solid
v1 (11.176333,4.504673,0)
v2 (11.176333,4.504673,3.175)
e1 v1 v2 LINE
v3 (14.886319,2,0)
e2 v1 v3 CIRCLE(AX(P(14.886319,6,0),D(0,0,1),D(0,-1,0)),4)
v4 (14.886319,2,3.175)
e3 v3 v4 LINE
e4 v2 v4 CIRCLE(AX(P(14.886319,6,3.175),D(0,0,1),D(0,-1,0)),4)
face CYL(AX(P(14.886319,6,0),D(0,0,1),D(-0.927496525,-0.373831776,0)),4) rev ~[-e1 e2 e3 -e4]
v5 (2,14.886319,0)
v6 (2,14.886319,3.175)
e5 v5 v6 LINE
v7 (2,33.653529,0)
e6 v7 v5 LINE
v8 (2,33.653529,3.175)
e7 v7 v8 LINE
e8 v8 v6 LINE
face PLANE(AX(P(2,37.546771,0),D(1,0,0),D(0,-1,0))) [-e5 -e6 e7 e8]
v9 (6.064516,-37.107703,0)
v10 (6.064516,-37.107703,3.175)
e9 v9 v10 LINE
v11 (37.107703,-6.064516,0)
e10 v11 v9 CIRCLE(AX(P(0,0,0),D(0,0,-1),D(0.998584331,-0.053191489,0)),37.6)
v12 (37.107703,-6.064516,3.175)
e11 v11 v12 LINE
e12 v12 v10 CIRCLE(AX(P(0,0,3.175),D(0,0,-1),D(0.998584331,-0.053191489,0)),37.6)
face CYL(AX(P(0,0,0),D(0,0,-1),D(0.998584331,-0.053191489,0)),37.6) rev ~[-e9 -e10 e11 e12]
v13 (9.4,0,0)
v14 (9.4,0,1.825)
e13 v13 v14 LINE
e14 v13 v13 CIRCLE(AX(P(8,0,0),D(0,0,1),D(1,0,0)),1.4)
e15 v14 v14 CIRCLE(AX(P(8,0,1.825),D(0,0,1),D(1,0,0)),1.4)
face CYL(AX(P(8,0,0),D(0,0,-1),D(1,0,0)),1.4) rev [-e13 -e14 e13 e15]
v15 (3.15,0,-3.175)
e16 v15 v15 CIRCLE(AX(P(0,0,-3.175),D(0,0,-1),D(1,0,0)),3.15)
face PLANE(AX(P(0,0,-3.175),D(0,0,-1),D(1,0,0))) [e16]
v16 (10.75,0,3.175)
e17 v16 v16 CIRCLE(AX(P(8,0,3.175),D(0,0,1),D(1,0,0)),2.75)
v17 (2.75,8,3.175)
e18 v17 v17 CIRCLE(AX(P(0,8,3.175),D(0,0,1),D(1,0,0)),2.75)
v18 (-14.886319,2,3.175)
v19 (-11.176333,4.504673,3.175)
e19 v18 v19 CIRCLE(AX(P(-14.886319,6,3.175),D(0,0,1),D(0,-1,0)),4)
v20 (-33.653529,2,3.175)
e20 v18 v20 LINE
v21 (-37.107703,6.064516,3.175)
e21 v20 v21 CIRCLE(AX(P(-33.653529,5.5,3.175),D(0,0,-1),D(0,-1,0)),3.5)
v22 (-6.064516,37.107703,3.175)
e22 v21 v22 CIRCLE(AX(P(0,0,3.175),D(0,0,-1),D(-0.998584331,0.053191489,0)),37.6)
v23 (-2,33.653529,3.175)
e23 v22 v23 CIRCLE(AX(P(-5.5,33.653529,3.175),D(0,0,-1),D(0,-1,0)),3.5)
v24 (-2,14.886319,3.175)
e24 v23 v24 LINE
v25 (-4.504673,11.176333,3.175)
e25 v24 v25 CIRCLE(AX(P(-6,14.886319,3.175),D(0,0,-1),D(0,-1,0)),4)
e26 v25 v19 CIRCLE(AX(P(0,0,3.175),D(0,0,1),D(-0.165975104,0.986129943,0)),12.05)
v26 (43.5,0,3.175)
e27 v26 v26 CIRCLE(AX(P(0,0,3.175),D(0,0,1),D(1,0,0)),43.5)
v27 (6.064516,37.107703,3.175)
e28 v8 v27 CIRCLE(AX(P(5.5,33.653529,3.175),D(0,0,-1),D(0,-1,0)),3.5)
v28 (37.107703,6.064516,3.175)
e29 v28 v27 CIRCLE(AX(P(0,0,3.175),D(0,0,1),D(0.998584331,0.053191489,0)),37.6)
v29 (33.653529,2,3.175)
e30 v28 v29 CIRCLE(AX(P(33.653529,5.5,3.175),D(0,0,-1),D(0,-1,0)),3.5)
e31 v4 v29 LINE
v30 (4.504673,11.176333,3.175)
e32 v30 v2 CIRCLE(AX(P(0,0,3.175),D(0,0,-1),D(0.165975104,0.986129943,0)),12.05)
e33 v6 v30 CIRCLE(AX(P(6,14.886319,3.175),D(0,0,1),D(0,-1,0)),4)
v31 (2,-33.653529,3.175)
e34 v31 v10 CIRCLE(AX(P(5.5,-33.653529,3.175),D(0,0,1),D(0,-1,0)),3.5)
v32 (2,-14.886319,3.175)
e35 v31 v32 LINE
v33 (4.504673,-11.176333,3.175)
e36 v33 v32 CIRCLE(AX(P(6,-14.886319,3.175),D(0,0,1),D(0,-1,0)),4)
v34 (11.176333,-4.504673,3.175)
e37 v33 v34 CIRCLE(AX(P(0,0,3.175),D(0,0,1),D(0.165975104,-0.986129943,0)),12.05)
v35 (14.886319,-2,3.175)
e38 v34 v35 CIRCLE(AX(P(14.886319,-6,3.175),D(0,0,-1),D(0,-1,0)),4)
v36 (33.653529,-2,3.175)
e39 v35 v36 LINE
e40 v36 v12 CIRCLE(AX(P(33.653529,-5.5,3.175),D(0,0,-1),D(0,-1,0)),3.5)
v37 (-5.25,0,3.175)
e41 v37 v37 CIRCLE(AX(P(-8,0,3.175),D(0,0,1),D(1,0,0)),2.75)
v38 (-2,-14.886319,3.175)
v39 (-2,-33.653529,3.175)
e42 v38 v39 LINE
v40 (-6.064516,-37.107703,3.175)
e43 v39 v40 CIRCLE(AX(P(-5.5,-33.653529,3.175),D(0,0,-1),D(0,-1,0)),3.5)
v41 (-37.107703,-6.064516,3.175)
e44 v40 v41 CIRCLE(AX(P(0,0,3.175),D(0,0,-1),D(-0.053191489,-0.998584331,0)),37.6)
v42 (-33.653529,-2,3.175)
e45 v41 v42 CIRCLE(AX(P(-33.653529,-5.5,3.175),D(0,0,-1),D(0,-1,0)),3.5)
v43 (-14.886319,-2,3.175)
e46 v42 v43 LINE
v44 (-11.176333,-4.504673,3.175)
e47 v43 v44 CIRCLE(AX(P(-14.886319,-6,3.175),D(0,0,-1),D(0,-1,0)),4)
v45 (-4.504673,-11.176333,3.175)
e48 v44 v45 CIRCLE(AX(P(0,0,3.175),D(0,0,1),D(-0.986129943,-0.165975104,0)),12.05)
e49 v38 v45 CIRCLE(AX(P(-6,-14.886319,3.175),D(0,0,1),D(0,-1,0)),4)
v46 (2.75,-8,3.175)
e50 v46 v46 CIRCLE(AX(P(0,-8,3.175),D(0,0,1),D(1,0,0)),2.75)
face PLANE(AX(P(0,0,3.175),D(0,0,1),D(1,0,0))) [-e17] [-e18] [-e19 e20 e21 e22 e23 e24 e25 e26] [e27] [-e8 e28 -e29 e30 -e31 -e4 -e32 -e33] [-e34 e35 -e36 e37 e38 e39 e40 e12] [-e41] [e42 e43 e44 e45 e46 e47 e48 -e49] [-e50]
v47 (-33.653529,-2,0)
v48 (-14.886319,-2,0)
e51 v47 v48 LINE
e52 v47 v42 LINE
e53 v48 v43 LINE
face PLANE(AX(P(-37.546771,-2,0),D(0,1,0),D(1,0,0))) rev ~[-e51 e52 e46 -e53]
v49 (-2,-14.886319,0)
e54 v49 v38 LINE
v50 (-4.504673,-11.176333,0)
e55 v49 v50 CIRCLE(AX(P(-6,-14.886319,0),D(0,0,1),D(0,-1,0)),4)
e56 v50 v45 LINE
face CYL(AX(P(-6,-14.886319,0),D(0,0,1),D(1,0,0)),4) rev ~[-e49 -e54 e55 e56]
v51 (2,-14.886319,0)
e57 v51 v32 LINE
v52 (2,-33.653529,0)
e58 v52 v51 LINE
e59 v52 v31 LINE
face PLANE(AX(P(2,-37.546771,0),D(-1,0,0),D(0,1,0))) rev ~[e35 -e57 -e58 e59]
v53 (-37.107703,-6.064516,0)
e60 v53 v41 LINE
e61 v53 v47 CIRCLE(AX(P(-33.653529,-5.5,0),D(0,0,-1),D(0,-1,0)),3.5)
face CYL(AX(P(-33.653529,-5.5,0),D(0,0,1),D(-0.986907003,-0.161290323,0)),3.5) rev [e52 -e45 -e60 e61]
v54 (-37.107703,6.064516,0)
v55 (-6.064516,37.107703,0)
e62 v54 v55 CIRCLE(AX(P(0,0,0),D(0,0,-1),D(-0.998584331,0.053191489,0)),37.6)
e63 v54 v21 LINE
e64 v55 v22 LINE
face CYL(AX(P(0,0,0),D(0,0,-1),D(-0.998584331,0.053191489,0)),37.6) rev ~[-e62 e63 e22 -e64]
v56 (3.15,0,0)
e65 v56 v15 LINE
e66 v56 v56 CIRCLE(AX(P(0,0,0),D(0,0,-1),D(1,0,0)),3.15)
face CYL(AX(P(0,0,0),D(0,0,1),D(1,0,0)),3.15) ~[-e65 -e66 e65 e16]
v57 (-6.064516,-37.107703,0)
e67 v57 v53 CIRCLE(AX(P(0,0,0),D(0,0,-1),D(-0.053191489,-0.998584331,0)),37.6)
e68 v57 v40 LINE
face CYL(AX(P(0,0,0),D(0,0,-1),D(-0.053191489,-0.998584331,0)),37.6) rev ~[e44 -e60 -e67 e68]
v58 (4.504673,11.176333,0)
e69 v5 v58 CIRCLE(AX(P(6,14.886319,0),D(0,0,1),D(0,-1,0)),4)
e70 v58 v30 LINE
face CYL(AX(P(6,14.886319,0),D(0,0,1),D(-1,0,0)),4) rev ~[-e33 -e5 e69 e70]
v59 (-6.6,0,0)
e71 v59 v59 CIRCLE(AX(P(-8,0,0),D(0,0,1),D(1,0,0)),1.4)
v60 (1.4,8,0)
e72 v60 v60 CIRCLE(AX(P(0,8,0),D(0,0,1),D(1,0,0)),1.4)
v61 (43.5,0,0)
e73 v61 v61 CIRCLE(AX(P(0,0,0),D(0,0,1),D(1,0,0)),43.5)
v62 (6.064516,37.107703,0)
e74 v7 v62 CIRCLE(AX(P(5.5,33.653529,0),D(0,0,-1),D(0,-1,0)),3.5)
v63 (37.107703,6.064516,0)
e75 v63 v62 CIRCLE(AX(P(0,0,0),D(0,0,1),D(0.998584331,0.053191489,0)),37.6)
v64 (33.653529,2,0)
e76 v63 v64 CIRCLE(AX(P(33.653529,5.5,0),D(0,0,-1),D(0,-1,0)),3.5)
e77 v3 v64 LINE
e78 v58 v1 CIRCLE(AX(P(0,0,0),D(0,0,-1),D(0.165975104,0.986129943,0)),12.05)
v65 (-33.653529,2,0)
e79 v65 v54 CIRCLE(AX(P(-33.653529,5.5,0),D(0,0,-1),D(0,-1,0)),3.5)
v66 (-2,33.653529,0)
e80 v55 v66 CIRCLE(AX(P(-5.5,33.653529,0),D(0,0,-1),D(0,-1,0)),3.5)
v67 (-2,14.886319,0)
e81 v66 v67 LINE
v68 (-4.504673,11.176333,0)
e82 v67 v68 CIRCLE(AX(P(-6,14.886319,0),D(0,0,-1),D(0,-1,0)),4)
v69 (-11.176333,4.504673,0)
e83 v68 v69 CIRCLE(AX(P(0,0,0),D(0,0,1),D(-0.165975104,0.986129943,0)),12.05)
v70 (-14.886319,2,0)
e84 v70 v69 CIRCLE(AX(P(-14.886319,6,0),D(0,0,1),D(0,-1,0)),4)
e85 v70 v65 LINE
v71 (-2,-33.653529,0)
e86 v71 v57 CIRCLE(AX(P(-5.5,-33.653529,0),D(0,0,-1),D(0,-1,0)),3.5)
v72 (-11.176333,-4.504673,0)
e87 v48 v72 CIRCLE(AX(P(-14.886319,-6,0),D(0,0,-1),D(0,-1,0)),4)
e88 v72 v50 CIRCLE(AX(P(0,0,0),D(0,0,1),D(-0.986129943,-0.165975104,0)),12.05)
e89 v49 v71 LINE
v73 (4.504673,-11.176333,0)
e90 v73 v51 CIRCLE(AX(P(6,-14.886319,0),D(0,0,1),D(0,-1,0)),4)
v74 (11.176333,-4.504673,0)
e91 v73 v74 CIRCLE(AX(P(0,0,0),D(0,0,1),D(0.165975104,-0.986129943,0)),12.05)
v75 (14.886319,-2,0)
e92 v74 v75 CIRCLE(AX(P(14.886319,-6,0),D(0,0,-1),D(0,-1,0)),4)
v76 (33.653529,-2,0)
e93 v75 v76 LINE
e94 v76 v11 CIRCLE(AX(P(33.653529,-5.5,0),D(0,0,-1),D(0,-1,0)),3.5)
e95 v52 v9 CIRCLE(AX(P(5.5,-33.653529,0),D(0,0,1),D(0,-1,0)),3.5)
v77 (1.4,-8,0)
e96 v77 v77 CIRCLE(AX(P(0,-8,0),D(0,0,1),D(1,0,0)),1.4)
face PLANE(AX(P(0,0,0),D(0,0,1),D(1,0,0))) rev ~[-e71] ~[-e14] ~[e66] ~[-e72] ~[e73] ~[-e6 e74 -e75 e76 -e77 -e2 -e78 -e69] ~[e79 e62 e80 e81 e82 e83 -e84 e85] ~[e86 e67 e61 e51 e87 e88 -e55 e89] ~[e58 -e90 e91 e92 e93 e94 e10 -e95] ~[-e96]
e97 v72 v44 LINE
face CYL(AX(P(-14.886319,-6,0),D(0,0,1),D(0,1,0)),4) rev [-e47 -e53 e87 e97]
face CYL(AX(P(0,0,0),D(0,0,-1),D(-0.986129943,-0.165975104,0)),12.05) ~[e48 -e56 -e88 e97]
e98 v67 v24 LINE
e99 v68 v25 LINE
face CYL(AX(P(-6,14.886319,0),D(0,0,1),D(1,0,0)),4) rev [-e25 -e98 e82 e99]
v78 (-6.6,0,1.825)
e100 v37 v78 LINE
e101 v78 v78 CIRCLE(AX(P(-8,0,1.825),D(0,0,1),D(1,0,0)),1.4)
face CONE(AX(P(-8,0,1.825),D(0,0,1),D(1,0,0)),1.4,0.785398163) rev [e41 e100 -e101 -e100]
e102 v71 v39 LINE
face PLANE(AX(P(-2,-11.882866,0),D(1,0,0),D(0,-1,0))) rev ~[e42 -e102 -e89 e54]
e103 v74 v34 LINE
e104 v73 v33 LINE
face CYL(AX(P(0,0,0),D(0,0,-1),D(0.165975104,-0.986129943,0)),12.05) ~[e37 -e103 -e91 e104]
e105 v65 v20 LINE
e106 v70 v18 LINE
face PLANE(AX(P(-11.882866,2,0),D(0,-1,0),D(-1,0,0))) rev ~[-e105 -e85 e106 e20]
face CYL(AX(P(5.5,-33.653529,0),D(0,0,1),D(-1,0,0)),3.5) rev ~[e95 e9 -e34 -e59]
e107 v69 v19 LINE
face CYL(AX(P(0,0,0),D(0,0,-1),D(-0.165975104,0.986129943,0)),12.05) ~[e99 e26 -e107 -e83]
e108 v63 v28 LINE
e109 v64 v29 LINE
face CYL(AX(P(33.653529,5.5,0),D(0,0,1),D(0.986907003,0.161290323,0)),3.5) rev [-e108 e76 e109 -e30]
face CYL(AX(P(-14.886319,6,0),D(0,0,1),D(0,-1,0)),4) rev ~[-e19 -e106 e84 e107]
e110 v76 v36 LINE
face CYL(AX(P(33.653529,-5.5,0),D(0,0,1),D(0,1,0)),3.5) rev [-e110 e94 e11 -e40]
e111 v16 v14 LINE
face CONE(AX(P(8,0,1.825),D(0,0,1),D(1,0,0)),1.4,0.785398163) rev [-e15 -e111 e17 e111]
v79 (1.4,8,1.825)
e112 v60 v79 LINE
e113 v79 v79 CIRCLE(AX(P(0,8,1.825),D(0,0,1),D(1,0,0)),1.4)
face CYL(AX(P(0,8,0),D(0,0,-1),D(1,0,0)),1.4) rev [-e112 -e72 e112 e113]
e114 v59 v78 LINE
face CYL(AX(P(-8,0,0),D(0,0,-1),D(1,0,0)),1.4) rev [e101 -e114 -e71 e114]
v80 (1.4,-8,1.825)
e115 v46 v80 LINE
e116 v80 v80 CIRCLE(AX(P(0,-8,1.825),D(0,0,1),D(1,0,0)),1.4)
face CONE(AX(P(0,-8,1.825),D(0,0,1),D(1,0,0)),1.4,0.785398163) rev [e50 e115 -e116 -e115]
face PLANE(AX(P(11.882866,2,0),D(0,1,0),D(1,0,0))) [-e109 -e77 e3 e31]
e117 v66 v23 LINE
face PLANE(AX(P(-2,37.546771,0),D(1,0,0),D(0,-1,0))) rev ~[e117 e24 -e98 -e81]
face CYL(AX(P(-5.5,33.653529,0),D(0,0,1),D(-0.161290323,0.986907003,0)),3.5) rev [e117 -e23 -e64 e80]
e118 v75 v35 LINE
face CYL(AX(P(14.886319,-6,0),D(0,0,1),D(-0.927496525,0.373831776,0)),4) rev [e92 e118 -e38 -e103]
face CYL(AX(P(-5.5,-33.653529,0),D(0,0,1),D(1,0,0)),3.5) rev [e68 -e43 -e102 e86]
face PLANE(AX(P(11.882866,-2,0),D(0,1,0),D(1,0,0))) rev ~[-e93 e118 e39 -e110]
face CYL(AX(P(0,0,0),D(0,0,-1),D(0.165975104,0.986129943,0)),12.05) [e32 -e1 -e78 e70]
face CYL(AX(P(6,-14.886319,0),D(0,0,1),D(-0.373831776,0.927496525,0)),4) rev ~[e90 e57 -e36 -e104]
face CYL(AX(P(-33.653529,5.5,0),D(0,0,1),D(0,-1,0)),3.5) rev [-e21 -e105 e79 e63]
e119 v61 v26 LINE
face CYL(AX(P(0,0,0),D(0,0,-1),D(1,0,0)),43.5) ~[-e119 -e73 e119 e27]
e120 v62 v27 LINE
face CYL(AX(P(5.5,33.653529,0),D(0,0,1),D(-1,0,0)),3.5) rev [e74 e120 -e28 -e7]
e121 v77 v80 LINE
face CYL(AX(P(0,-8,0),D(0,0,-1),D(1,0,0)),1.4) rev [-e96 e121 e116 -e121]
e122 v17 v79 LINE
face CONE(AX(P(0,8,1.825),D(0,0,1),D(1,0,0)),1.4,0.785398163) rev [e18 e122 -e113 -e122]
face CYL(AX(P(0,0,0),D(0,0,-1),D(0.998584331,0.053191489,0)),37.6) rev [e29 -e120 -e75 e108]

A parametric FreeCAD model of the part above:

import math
import FreeCAD as App
import Part
import Sketcher
Q = App.Units.Quantity


def edges_at(feature, points):
    """Names of the edges that pass closest to the given points."""
    edges = feature.Shape.Edges
    near = lambda p: min(range(len(edges)), key=lambda i: edges[i].distToShape(Part.Vertex(*p))[0])
    return sorted({f"Edge{near(p) + 1}" for p in points})

doc = App.newDocument("Part")
body = doc.addObject("PartDesign::Body", "Body")

sketch1 = doc.addObject("Sketcher::SketchObject", "Sketch")
body.addObject(sketch1)
sketch1.AttachmentSupport = (doc.XY_Plane, [""])
sketch1.MapMode = "FlatFace"
sketch1.addGeometry(Part.Circle(App.Vector(0, 0, 0), App.Vector(0, 0, 1), 43.5), False)
sketch1.addGeometry(Part.ArcOfCircle(Part.Circle(App.Vector(0, 0, 0), App.Vector(0, 0, 1), 37.6), math.radians(-177), math.radians(-93)), False)
sketch1.addGeometry(Part.LineSegment(App.Vector(-37.5, -2, 0), App.Vector(-11.9, -2, 0)), False)
sketch1.addGeometry(Part.ArcOfCircle(Part.Circle(App.Vector(0, 0, 0), App.Vector(0, 0, 1), 12.1), math.radians(-170), math.radians(-100)), False)
sketch1.addGeometry(Part.LineSegment(App.Vector(-2, -11.9, 0), App.Vector(-2, -37.5, 0)), False)
sketch1.addGeometry(Part.ArcOfCircle(Part.Circle(App.Vector(0, 0, 0), App.Vector(0, 0, 1), 12.1), math.radians(-80), math.radians(-10)), False)
sketch1.addGeometry(Part.LineSegment(App.Vector(11.9, -2, 0), App.Vector(37.5, -2, 0)), False)
sketch1.addGeometry(Part.ArcOfCircle(Part.Circle(App.Vector(0, 0, 0), App.Vector(0, 0, 1), 37.6), math.radians(-87), math.radians(-3)), False)
sketch1.addGeometry(Part.LineSegment(App.Vector(2, -37.5, 0), App.Vector(2, -11.9, 0)), False)
sketch1.addGeometry(Part.Circle(App.Vector(0, -8, 0), App.Vector(0, 0, 1), 1.4), False)
sketch1.addGeometry(Part.Circle(App.Vector(-8, 0, 0), App.Vector(0, 0, 1), 1.4), False)
sketch1.addGeometry(Part.ArcOfCircle(Part.Circle(App.Vector(0, 0, 0), App.Vector(0, 0, 1), 37.6), math.radians(93), math.radians(177)), False)
sketch1.addGeometry(Part.LineSegment(App.Vector(-2, 37.5, 0), App.Vector(-2, 11.9, 0)), False)
sketch1.addGeometry(Part.ArcOfCircle(Part.Circle(App.Vector(0, 0, 0), App.Vector(0, 0, 1), 12.1), math.radians(100), math.radians(170)), False)
sketch1.addGeometry(Part.LineSegment(App.Vector(-11.9, 2, 0), App.Vector(-37.5, 2, 0)), False)
sketch1.addGeometry(Part.Circle(App.Vector(8, 0, 0), App.Vector(0, 0, 1), 1.4), False)
sketch1.addGeometry(Part.Circle(App.Vector(0, 8, 0), App.Vector(0, 0, 1), 1.4), False)
sketch1.addGeometry(Part.LineSegment(App.Vector(2, 11.9, 0), App.Vector(2, 37.5, 0)), False)
sketch1.addGeometry(Part.ArcOfCircle(Part.Circle(App.Vector(0, 0, 0), App.Vector(0, 0, 1), 37.6), math.radians(3), math.radians(87)), False)
sketch1.addGeometry(Part.LineSegment(App.Vector(37.5, 2, 0), App.Vector(11.9, 2, 0)), False)
sketch1.addGeometry(Part.ArcOfCircle(Part.Circle(App.Vector(0, 0, 0), App.Vector(0, 0, 1), 12.1), math.radians(10), math.radians(80)), False)
sketch1.addConstraint(Sketcher.Constraint("Coincident", 1, 1, 2, 1))
sketch1.addConstraint(Sketcher.Constraint("Coincident", 2, 2, 3, 1))
sketch1.addConstraint(Sketcher.Constraint("Coincident", 3, 2, 4, 1))
sketch1.addConstraint(Sketcher.Constraint("Coincident", 4, 2, 1, 2))
sketch1.addConstraint(Sketcher.Constraint("Coincident", 5, 2, 6, 1))
sketch1.addConstraint(Sketcher.Constraint("Coincident", 6, 2, 7, 2))
sketch1.addConstraint(Sketcher.Constraint("Coincident", 7, 1, 8, 1))
sketch1.addConstraint(Sketcher.Constraint("Coincident", 8, 2, 5, 1))
sketch1.addConstraint(Sketcher.Constraint("Coincident", 11, 1, 12, 1))
sketch1.addConstraint(Sketcher.Constraint("Coincident", 12, 2, 13, 1))
sketch1.addConstraint(Sketcher.Constraint("Coincident", 13, 2, 14, 1))
sketch1.addConstraint(Sketcher.Constraint("Coincident", 14, 2, 11, 2))
sketch1.addConstraint(Sketcher.Constraint("Coincident", 17, 2, 18, 2))
sketch1.addConstraint(Sketcher.Constraint("Coincident", 18, 1, 19, 1))
sketch1.addConstraint(Sketcher.Constraint("Coincident", 19, 2, 20, 1))
sketch1.addConstraint(Sketcher.Constraint("Coincident", 20, 2, 17, 1))
sketch1.addConstraint(Sketcher.Constraint("Horizontal", 2))
sketch1.addConstraint(Sketcher.Constraint("Vertical", 4))
sketch1.addConstraint(Sketcher.Constraint("Horizontal", 6))
sketch1.addConstraint(Sketcher.Constraint("Vertical", 8))
sketch1.addConstraint(Sketcher.Constraint("Vertical", 12))
sketch1.addConstraint(Sketcher.Constraint("Horizontal", 14))
sketch1.addConstraint(Sketcher.Constraint("Vertical", 17))
sketch1.addConstraint(Sketcher.Constraint("Horizontal", 19))
sketch1.addConstraint(Sketcher.Constraint("Coincident", 0, 3, -1, 1))
sketch1.addConstraint(Sketcher.Constraint("Coincident", 1, 3, -1, 1))
sketch1.addConstraint(Sketcher.Constraint("Coincident", 3, 3, -1, 1))
sketch1.addConstraint(Sketcher.Constraint("Coincident", 5, 3, -1, 1))
sketch1.addConstraint(Sketcher.Constraint("Coincident", 7, 3, -1, 1))
sketch1.addConstraint(Sketcher.Constraint("Coincident", 11, 3, -1, 1))
sketch1.addConstraint(Sketcher.Constraint("Coincident", 13, 3, -1, 1))
sketch1.addConstraint(Sketcher.Constraint("Coincident", 18, 3, -1, 1))
sketch1.addConstraint(Sketcher.Constraint("Coincident", 20, 3, -1, 1))
sketch1.addConstraint(Sketcher.Constraint("Equal", 3, 5))
sketch1.addConstraint(Sketcher.Constraint("Equal", 1, 7))
sketch1.addConstraint(Sketcher.Constraint("Equal", 9, 10))
sketch1.addConstraint(Sketcher.Constraint("Equal", 7, 11))
sketch1.addConstraint(Sketcher.Constraint("Equal", 5, 13))
sketch1.addConstraint(Sketcher.Constraint("Equal", 10, 15))
sketch1.addConstraint(Sketcher.Constraint("Equal", 15, 16))
sketch1.addConstraint(Sketcher.Constraint("Equal", 11, 18))
sketch1.addConstraint(Sketcher.Constraint("Equal", 13, 20))
sketch1.addConstraint(Sketcher.Constraint("Symmetric", 10, 3, 15, 3, -1, 1))
sketch1.addConstraint(Sketcher.Constraint("Symmetric", 9, 3, 16, 3, -1, 1))
sketch1.addConstraint(Sketcher.Constraint("PointOnObject", 9, 3, -2))
sketch1.addConstraint(Sketcher.Constraint("PointOnObject", 10, 3, -1))
sketch1.addConstraint(Sketcher.Constraint("Horizontal", 2, 2, 5, 2))
sketch1.addConstraint(Sketcher.Constraint("Horizontal", 4, 2, 7, 1))
sketch1.addConstraint(Sketcher.Constraint("Horizontal", 11, 1, 17, 2))
sketch1.addConstraint(Sketcher.Constraint("Horizontal", 14, 2, 18, 1))
sketch1.addConstraint(Sketcher.Constraint("Vertical", 4, 2, 11, 1))
sketch1.addConstraint(Sketcher.Constraint("Vertical", 2, 2, 13, 2))
sketch1.addConstraint(Sketcher.Constraint("Equal", 19, 4))
sketch1.addConstraint(Sketcher.Constraint("Diameter", 0, Q("87 mm")))
sketch1.addConstraint(Sketcher.Constraint("Diameter", 9, Q("2.8 mm")))
sketch1.addConstraint(Sketcher.Constraint("Radius", 1, Q("37.6 mm")))
sketch1.addConstraint(Sketcher.Constraint("Radius", 3, Q("12.05 mm")))
sketch1.addConstraint(Sketcher.Constraint("DistanceY", 9, 3, -1, 1, Q("8 mm")))
sketch1.addConstraint(Sketcher.Constraint("DistanceX", 10, 3, -1, 1, Q("8 mm")))
sketch1.addConstraint(Sketcher.Constraint("DistanceY", 1, 1, -1, 1, Q("2 mm")))
pad1 = doc.addObject("PartDesign::Pad", "Pad")
body.addObject(pad1)
pad1.Profile = sketch1
pad1.Length = 3.175
doc.recompute()

fillet = doc.addObject("PartDesign::Fillet", "Fillet")
body.addObject(fillet)
fillet.Base = (pad1, edges_at(pad1, [
    (-11.883, 2, 1.587),
    (-2, 11.883, 1.587),
    (-2, -11.883, 1.587),
    (-11.883, -2, 1.587),
    (11.883, -2, 1.587),
    (2, -11.883, 1.587),
    (2, 11.883, 1.587),
    (11.883, 2, 1.587),
]))
fillet.Radius = 4
doc.recompute()

fillet2 = doc.addObject("PartDesign::Fillet", "Fillet001")
body.addObject(fillet2)
fillet2.Base = (fillet, edges_at(fillet, [
    (-2, 37.547, 1.587),
    (-37.547, 2, 1.587),
    (-37.547, -2, 1.587),
    (-2, -37.547, 1.587),
    (2, -37.547, 1.587),
    (37.547, -2, 1.587),
    (37.547, 2, 1.587),
    (2, 37.547, 1.587),
]))
fillet2.Radius = 3.5

sketch2 = doc.addObject("Sketcher::SketchObject", "Sketch001")
body.addObject(sketch2)
sketch2.AttachmentSupport = (doc.XY_Plane, [""])
sketch2.MapMode = "FlatFace"
sketch2.addGeometry(Part.Circle(App.Vector(0, 0, 0), App.Vector(0, 0, 1), 3.1), False)
sketch2.addConstraint(Sketcher.Constraint("Coincident", 0, 3, -1, 1))
sketch2.addConstraint(Sketcher.Constraint("Diameter", 0, Q("6.3 mm")))
pad2 = doc.addObject("PartDesign::Pad", "Pad001")
body.addObject(pad2)
pad2.Profile = sketch2
pad2.Length = 3.175
pad2.Reversed = True
doc.recompute()

chamfer = doc.addObject("PartDesign::Chamfer", "Chamfer")
body.addObject(chamfer)
chamfer.Base = (pad2, edges_at(pad2, [
    (6.6, 0, 3.175),
    (-9.4, 0, 3.175),
    (-1.4, 8, 3.175),
    (-1.4, -8, 3.175),
]))
chamfer.Size = 1.35

doc.recompute()
